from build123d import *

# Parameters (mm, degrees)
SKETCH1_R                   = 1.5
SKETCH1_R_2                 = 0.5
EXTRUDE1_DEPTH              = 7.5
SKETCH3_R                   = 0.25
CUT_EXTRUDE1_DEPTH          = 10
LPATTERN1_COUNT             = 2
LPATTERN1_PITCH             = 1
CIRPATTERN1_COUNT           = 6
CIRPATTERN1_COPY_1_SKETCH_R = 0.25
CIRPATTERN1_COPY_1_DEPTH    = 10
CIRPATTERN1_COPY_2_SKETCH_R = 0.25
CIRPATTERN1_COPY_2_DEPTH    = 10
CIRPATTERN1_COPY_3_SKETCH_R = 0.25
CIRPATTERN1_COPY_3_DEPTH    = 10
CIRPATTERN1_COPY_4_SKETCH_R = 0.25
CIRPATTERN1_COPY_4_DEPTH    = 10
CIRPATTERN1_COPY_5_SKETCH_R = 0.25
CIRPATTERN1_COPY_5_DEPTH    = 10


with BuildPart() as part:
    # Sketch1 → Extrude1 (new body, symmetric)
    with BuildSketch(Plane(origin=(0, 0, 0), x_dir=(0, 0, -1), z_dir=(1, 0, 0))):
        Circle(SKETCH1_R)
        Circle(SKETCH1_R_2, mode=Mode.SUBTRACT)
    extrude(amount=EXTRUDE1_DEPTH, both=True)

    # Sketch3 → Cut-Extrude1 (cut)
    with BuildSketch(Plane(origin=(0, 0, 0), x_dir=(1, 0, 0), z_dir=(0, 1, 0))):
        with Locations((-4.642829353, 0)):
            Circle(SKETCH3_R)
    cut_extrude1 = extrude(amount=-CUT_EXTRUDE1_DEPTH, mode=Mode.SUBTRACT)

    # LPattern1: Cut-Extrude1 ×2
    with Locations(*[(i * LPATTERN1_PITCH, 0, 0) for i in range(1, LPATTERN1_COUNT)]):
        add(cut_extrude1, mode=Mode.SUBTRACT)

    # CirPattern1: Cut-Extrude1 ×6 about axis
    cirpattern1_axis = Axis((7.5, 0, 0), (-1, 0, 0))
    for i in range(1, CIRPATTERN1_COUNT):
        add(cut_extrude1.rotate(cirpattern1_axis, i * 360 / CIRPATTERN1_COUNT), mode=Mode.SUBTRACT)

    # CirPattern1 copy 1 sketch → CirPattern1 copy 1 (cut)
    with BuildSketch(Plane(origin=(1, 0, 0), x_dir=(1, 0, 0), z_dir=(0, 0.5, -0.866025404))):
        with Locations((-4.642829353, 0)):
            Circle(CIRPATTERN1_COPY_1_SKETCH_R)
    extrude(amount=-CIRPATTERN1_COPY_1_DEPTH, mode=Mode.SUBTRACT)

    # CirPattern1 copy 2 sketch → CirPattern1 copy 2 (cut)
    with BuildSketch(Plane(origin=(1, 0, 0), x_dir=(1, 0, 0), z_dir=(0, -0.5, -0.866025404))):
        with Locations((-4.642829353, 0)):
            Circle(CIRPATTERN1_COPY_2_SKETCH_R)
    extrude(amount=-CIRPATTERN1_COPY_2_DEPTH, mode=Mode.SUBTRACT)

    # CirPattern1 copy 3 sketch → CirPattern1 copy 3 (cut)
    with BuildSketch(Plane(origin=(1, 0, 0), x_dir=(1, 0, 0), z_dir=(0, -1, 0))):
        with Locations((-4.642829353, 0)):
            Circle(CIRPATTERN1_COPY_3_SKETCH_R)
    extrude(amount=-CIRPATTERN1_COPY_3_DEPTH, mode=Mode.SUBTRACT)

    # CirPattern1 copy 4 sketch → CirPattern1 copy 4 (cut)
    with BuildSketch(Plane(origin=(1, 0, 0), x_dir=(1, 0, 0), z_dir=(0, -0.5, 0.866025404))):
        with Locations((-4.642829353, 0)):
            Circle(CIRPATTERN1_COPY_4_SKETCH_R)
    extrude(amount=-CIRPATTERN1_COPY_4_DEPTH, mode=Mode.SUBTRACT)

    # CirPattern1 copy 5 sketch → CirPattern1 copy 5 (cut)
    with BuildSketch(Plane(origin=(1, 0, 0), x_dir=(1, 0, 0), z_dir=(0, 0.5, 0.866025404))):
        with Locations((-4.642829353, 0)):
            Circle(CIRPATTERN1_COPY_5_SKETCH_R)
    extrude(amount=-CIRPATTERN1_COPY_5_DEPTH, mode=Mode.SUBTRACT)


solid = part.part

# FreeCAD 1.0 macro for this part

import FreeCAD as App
import Part
import Sketcher
from FreeCAD import Vector

doc = App.newDocument("Part")
body = doc.addObject("PartDesign::Body", "Body")

sketch1 = body.newObject("Sketcher::SketchObject", "Sketch")
sketch1.AttachmentSupport = (doc.getObject("YZ_Plane"), [""])
sketch1.MapMode = "FlatFace"
sketch1.addGeometry([
    Part.Circle(Vector(0, 0, 0), Vector(0, 0, 1), 1.5),
    Part.Circle(Vector(0, 0, 0), Vector(0, 0, 1), 0.5),
], False)
sketch1.addConstraint([
    Sketcher.Constraint("Coincident", 0, 3, -1, 1),
    Sketcher.Constraint("Coincident", 1, 3, -1, 1),
    Sketcher.Constraint("Diameter", 0, 3.0),
    Sketcher.Constraint("Diameter", 1, 1.0),
])
pad1 = body.newObject("PartDesign::Pad", "Pad")
pad1.Profile = sketch1
pad1.Length = 15
pad1.Midplane = True

sketch2 = body.newObject("Sketcher::SketchObject", "Sketch001")
sketch2.AttachmentSupport = (doc.getObject("XZ_Plane"), [""])
sketch2.MapMode = "FlatFace"
sketch2.addGeometry(Part.Circle(Vector(-4.64, 0, 0), Vector(0, 0, 1), 0.25), False)
sketch2.addConstraint([
    Sketcher.Constraint("PointOnObject", 0, 3, -1),
    Sketcher.Constraint("Diameter", 0, 0.5),
    Sketcher.Constraint("DistanceX", 0, 3, -1, 1, 4.642829),
])
pocket1 = body.newObject("PartDesign::Pocket", "Pocket")
pocket1.Profile = sketch2
pocket1.Length = 10
pocket1.Reversed = True
doc.recompute()

linearpattern = body.newObject("PartDesign::LinearPattern", "LinearPattern")
linearpattern.Originals = [pocket1]
linearpattern.Direction = (doc.getObject("X_Axis"), [""])
linearpattern.Mode = "offset"
linearpattern.Offset = 1
linearpattern.Occurrences = 2
body.Tip = linearpattern
doc.recompute()

polarpattern = body.newObject("PartDesign::PolarPattern", "PolarPattern")
polarpattern.Originals = [pocket1]
polarpattern.Axis = (doc.getObject("X_Axis"), [""])
polarpattern.Angle = 360
polarpattern.Occurrences = 6
body.Tip = polarpattern

sketch3 = body.newObject("Sketcher::SketchObject", "Sketch002")
sketch3.Placement = App.Placement(Vector(1, 0, 0), App.Rotation(Vector(1, 0, 0), Vector(0, -0.866025404, -0.5), Vector(0, 0.5, -0.866025404), "ZXY"))
sketch3.addGeometry(Part.Circle(Vector(-4.64, 0, 0), Vector(0, 0, 1), 0.25), False)
sketch3.addConstraint([
    Sketcher.Constraint("PointOnObject", 0, 3, -1),
    Sketcher.Constraint("Diameter", 0, 0.5),
    Sketcher.Constraint("DistanceX", 0, 3, -1, 1, 4.642829),
])
pocket2 = body.newObject("PartDesign::Pocket", "Pocket001")
pocket2.Profile = sketch3
pocket2.Length = 10

sketch4 = body.newObject("Sketcher::SketchObject", "Sketch003")
sketch4.Placement = App.Placement(Vector(1, 0, 0), App.Rotation(Vector(1, 0, 0), Vector(0, -0.866025404, 0.5), Vector(0, -0.5, -0.866025404), "ZXY"))
sketch4.addGeometry(Part.Circle(Vector(-4.64, 0, 0), Vector(0, 0, 1), 0.25), False)
sketch4.addConstraint([
    Sketcher.Constraint("PointOnObject", 0, 3, -1),
    Sketcher.Constraint("Diameter", 0, 0.5),
    Sketcher.Constraint("DistanceX", 0, 3, -1, 1, 4.642829),
])
pocket3 = body.newObject("PartDesign::Pocket", "Pocket002")
pocket3.Profile = sketch4
pocket3.Length = 10

sketch5 = body.newObject("Sketcher::SketchObject", "Sketch004")
sketch5.AttachmentSupport = (doc.getObject("XZ_Plane"), [""])
sketch5.MapMode = "FlatFace"
sketch5.addGeometry(Part.Circle(Vector(-3.64, 0, 0), Vector(0, 0, 1), 0.25), False)
sketch5.addConstraint([
    Sketcher.Constraint("PointOnObject", 0, 3, -1),
    Sketcher.Constraint("Diameter", 0, 0.5),
    Sketcher.Constraint("DistanceX", 0, 3, -1, 1, 3.642829),
])
pocket4 = body.newObject("PartDesign::Pocket", "Pocket003")
pocket4.Profile = sketch5
pocket4.Length = 10

sketch6 = body.newObject("Sketcher::SketchObject", "Sketch005")
sketch6.Placement = App.Placement(Vector(1, 0, 0), App.Rotation(Vector(1, 0, 0), Vector(0, 0.866025404, 0.5), Vector(0, -0.5, 0.866025404), "ZXY"))
sketch6.addGeometry(Part.Circle(Vector(-4.64, 0, 0), Vector(0, 0, 1), 0.25), False)
sketch6.addConstraint([
    Sketcher.Constraint("PointOnObject", 0, 3, -1),
    Sketcher.Constraint("Diameter", 0, 0.5),
    Sketcher.Constraint("DistanceX", 0, 3, -1, 1, 4.642829),
])
pocket5 = body.newObject("PartDesign::Pocket", "Pocket004")
pocket5.Profile = sketch6
pocket5.Length = 10

sketch7 = body.newObject("Sketcher::SketchObject", "Sketch006")
sketch7.Placement = App.Placement(Vector(1, 0, 0), App.Rotation(Vector(1, 0, 0), Vector(0, 0.866025404, -0.5), Vector(0, 0.5, 0.866025404), "ZXY"))
sketch7.addGeometry(Part.Circle(Vector(-4.64, 0, 0), Vector(0, 0, 1), 0.25), False)
sketch7.addConstraint([
    Sketcher.Constraint("PointOnObject", 0, 3, -1),
    Sketcher.Constraint("Diameter", 0, 0.5),
    Sketcher.Constraint("DistanceX", 0, 3, -1, 1, 4.642829),
])
pocket6 = body.newObject("PartDesign::Pocket", "Pocket005")
pocket6.Profile = sketch7
pocket6.Length = 10

doc.recompute()
